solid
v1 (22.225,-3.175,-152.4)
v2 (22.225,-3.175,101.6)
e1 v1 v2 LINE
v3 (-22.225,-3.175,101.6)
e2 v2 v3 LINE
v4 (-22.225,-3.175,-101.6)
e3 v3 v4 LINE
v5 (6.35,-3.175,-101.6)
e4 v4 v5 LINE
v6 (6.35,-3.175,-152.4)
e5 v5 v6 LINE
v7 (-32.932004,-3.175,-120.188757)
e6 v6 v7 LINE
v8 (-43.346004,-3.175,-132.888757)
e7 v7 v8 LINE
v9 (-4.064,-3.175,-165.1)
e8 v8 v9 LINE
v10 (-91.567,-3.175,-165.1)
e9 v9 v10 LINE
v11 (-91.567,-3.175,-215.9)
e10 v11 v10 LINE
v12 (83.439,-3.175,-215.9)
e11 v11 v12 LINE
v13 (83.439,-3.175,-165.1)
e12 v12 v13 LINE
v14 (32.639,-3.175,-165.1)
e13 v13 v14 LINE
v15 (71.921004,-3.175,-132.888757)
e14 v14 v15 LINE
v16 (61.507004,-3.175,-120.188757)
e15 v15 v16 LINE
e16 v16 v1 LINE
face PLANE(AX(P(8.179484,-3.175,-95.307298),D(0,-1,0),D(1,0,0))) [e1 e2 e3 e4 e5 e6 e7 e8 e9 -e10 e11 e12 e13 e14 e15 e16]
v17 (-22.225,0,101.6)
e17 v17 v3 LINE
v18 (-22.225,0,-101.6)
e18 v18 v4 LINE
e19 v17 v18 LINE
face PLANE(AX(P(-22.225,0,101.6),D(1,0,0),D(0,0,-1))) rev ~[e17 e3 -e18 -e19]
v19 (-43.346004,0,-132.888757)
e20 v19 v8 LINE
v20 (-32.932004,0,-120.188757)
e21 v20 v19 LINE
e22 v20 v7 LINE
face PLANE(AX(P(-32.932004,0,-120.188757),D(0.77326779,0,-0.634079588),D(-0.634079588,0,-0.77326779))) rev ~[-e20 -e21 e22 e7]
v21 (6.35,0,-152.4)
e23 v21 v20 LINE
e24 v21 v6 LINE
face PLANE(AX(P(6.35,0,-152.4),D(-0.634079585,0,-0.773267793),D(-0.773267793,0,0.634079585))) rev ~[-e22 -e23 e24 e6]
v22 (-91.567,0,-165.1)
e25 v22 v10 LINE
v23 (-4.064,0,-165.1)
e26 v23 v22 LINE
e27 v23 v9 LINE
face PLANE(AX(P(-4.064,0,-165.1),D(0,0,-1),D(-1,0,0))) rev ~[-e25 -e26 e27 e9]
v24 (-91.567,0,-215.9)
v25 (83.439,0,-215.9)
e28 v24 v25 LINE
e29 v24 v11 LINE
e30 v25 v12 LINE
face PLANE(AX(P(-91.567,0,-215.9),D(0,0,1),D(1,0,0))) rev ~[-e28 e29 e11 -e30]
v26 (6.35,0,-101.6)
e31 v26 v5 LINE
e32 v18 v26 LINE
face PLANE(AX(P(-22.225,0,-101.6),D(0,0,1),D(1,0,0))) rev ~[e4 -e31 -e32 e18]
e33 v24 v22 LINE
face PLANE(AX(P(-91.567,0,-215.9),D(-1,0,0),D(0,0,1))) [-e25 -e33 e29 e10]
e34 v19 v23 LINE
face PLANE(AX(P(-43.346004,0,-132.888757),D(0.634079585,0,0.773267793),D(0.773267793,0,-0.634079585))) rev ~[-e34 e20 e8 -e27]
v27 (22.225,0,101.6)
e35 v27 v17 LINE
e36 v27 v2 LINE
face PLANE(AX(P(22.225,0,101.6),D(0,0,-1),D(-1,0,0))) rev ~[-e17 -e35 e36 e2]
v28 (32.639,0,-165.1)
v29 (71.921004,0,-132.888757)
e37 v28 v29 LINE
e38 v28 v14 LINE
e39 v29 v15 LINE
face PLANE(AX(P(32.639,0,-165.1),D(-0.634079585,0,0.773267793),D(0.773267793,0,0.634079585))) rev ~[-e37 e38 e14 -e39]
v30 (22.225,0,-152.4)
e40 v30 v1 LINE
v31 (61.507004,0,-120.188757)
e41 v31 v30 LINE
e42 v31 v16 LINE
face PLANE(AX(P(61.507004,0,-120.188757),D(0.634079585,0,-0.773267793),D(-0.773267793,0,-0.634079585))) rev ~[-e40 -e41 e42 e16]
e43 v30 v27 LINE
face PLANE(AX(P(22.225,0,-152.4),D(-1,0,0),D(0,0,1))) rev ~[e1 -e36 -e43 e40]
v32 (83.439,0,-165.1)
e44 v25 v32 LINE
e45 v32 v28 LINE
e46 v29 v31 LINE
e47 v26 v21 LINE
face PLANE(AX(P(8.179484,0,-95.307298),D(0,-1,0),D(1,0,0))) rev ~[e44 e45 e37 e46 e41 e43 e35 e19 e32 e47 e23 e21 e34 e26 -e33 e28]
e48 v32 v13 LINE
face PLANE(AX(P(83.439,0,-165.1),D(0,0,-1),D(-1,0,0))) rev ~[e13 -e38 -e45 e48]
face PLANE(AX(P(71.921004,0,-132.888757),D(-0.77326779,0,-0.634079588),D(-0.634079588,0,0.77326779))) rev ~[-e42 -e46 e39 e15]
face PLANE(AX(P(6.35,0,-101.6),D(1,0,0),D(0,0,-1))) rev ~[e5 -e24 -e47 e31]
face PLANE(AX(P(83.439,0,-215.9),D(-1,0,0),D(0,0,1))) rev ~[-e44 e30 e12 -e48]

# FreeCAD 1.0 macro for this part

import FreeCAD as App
import Part
import Sketcher

V = App.Vector
Q = App.Units.Quantity

doc = App.newDocument("Part")
body = doc.addObject("PartDesign::Body", "Body")

# Sketch on XZ plane
sketch1 = doc.addObject("Sketcher::SketchObject", "Sketch")
body.addObject(sketch1)
sketch1.AttachmentSupport = (doc.XZ_Plane, [""])
sketch1.MapMode = "FlatFace"
sketch1.addGeometry(Part.LineSegment(V(22, 102, 0), V(-22, 102, 0)), False)
sketch1.addGeometry(Part.LineSegment(V(-22, 102, 0), V(-22, -102, 0)), False)
sketch1.addGeometry(Part.LineSegment(V(-22, -102, 0), V(6, -102, 0)), False)
sketch1.addGeometry(Part.LineSegment(V(6, -102, 0), V(6, -152, 0)), False)
sketch1.addGeometry(Part.LineSegment(V(6, -152, 0), V(-33, -120, 0)), False)
sketch1.addGeometry(Part.LineSegment(V(-33, -120, 0), V(-43, -133, 0)), False)
sketch1.addGeometry(Part.LineSegment(V(-43, -133, 0), V(-4, -165, 0)), False)
sketch1.addGeometry(Part.LineSegment(V(-4, -165, 0), V(-92, -165, 0)), False)
sketch1.addGeometry(Part.LineSegment(V(-92, -165, 0), V(-92, -216, 0)), False)
sketch1.addGeometry(Part.LineSegment(V(-92, -216, 0), V(83, -216, 0)), False)
sketch1.addGeometry(Part.LineSegment(V(83, -216, 0), V(83, -165, 0)), False)
sketch1.addGeometry(Part.LineSegment(V(83, -165, 0), V(33, -165, 0)), False)
sketch1.addGeometry(Part.LineSegment(V(33, -165, 0), V(72, -133, 0)), False)
sketch1.addGeometry(Part.LineSegment(V(72, -133, 0), V(62, -120, 0)), False)
sketch1.addGeometry(Part.LineSegment(V(62, -120, 0), V(22, -152, 0)), False)
sketch1.addGeometry(Part.LineSegment(V(22, -152, 0), V(22, 102, 0)), False)
sketch1.addConstraint(Sketcher.Constraint("Coincident", 0, 2, 1, 1))
sketch1.addConstraint(Sketcher.Constraint("Coincident", 1, 2, 2, 1))
sketch1.addConstraint(Sketcher.Constraint("Coincident", 2, 2, 3, 1))
sketch1.addConstraint(Sketcher.Constraint("Coincident", 3, 2, 4, 1))
sketch1.addConstraint(Sketcher.Constraint("Coincident", 4, 2, 5, 1))
sketch1.addConstraint(Sketcher.Constraint("Coincident", 5, 2, 6, 1))
sketch1.addConstraint(Sketcher.Constraint("Coincident", 6, 2, 7, 1))
sketch1.addConstraint(Sketcher.Constraint("Coincident", 7, 2, 8, 1))
sketch1.addConstraint(Sketcher.Constraint("Coincident", 8, 2, 9, 1))
sketch1.addConstraint(Sketcher.Constraint("Coincident", 9, 2, 10, 1))
sketch1.addConstraint(Sketcher.Constraint("Coincident", 10, 2, 11, 1))
sketch1.addConstraint(Sketcher.Constraint("Coincident", 11, 2, 12, 1))
sketch1.addConstraint(Sketcher.Constraint("Coincident", 12, 2, 13, 1))
sketch1.addConstraint(Sketcher.Constraint("Coincident", 13, 2, 14, 1))
sketch1.addConstraint(Sketcher.Constraint("Coincident", 14, 2, 15, 1))
sketch1.addConstraint(Sketcher.Constraint("Coincident", 15, 2, 0, 1))
sketch1.addConstraint(Sketcher.Constraint("Horizontal", 0))
sketch1.addConstraint(Sketcher.Constraint("Vertical", 1))
sketch1.addConstraint(Sketcher.Constraint("Horizontal", 2))
sketch1.addConstraint(Sketcher.Constraint("Vertical", 3))
sketch1.addConstraint(Sketcher.Constraint("Horizontal", 7))
sketch1.addConstraint(Sketcher.Constraint("Vertical", 8))
sketch1.addConstraint(Sketcher.Constraint("Horizontal", 9))
sketch1.addConstraint(Sketcher.Constraint("Vertical", 10))
sketch1.addConstraint(Sketcher.Constraint("Horizontal", 11))
sketch1.addConstraint(Sketcher.Constraint("Vertical", 15))
sketch1.addConstraint(Sketcher.Constraint("Symmetric", 1, 2, 15, 2, -1, 1))
sketch1.addConstraint(Sketcher.Constraint("Perpendicular", 4, 5))
sketch1.addConstraint(Sketcher.Constraint("Perpendicular", 5, 6))
sketch1.addConstraint(Sketcher.Constraint("Perpendicular", 12, 13))
sketch1.addConstraint(Sketcher.Constraint("Perpendicular", 13, 14))
sketch1.addConstraint(Sketcher.Constraint("Horizontal", 7, 2, 10, 2))
sketch1.addConstraint(Sketcher.Constraint("Horizontal", 5, 2, 12, 2))
sketch1.addConstraint(Sketcher.Constraint("Horizontal", 4, 2, 13, 2))
sketch1.addConstraint(Sketcher.Constraint("Horizontal", 3, 2, 14, 2))
sketch1.addConstraint(Sketcher.Constraint("Equal", 11, 3))
sketch1.addConstraint(Sketcher.Constraint("Equal", 3, 8))
sketch1.addConstraint(Sketcher.Constraint("Equal", 4, 6))
sketch1.addConstraint(Sketcher.Constraint("Equal", 6, 12))
sketch1.addConstraint(Sketcher.Constraint("DistanceX", 11, 2, 11, 1, Q("2 in")))
sketch1.addConstraint(Sketcher.Constraint("DistanceY", 1, 2, 1, 1, Q("8 in")))
sketch1.addConstraint(Sketcher.Constraint("Distance", 4, Q("2 in")))
sketch1.addConstraint(Sketcher.Constraint("DistanceX", 0, 2, 0, 1, Q("1.75 in")))
sketch1.addConstraint(Sketcher.Constraint("DistanceX", 9, 1, 9, 2, Q("6.89 in")))
sketch1.addConstraint(Sketcher.Constraint("DistanceY", 6, 2, -1, 1, Q("6.5 in")))
sketch1.addConstraint(Sketcher.Constraint("DistanceX", 2, 1, 2, 2, Q("1.125 in")))
sketch1.addConstraint(Sketcher.Constraint("DistanceX", 7, 2, 7, 1, Q("3.445 in")))
pad1 = doc.addObject("PartDesign::Pad", "Pad")
body.addObject(pad1)
pad1.Profile = sketch1
pad1.Length = Q("0.125 in")

doc.recompute()
